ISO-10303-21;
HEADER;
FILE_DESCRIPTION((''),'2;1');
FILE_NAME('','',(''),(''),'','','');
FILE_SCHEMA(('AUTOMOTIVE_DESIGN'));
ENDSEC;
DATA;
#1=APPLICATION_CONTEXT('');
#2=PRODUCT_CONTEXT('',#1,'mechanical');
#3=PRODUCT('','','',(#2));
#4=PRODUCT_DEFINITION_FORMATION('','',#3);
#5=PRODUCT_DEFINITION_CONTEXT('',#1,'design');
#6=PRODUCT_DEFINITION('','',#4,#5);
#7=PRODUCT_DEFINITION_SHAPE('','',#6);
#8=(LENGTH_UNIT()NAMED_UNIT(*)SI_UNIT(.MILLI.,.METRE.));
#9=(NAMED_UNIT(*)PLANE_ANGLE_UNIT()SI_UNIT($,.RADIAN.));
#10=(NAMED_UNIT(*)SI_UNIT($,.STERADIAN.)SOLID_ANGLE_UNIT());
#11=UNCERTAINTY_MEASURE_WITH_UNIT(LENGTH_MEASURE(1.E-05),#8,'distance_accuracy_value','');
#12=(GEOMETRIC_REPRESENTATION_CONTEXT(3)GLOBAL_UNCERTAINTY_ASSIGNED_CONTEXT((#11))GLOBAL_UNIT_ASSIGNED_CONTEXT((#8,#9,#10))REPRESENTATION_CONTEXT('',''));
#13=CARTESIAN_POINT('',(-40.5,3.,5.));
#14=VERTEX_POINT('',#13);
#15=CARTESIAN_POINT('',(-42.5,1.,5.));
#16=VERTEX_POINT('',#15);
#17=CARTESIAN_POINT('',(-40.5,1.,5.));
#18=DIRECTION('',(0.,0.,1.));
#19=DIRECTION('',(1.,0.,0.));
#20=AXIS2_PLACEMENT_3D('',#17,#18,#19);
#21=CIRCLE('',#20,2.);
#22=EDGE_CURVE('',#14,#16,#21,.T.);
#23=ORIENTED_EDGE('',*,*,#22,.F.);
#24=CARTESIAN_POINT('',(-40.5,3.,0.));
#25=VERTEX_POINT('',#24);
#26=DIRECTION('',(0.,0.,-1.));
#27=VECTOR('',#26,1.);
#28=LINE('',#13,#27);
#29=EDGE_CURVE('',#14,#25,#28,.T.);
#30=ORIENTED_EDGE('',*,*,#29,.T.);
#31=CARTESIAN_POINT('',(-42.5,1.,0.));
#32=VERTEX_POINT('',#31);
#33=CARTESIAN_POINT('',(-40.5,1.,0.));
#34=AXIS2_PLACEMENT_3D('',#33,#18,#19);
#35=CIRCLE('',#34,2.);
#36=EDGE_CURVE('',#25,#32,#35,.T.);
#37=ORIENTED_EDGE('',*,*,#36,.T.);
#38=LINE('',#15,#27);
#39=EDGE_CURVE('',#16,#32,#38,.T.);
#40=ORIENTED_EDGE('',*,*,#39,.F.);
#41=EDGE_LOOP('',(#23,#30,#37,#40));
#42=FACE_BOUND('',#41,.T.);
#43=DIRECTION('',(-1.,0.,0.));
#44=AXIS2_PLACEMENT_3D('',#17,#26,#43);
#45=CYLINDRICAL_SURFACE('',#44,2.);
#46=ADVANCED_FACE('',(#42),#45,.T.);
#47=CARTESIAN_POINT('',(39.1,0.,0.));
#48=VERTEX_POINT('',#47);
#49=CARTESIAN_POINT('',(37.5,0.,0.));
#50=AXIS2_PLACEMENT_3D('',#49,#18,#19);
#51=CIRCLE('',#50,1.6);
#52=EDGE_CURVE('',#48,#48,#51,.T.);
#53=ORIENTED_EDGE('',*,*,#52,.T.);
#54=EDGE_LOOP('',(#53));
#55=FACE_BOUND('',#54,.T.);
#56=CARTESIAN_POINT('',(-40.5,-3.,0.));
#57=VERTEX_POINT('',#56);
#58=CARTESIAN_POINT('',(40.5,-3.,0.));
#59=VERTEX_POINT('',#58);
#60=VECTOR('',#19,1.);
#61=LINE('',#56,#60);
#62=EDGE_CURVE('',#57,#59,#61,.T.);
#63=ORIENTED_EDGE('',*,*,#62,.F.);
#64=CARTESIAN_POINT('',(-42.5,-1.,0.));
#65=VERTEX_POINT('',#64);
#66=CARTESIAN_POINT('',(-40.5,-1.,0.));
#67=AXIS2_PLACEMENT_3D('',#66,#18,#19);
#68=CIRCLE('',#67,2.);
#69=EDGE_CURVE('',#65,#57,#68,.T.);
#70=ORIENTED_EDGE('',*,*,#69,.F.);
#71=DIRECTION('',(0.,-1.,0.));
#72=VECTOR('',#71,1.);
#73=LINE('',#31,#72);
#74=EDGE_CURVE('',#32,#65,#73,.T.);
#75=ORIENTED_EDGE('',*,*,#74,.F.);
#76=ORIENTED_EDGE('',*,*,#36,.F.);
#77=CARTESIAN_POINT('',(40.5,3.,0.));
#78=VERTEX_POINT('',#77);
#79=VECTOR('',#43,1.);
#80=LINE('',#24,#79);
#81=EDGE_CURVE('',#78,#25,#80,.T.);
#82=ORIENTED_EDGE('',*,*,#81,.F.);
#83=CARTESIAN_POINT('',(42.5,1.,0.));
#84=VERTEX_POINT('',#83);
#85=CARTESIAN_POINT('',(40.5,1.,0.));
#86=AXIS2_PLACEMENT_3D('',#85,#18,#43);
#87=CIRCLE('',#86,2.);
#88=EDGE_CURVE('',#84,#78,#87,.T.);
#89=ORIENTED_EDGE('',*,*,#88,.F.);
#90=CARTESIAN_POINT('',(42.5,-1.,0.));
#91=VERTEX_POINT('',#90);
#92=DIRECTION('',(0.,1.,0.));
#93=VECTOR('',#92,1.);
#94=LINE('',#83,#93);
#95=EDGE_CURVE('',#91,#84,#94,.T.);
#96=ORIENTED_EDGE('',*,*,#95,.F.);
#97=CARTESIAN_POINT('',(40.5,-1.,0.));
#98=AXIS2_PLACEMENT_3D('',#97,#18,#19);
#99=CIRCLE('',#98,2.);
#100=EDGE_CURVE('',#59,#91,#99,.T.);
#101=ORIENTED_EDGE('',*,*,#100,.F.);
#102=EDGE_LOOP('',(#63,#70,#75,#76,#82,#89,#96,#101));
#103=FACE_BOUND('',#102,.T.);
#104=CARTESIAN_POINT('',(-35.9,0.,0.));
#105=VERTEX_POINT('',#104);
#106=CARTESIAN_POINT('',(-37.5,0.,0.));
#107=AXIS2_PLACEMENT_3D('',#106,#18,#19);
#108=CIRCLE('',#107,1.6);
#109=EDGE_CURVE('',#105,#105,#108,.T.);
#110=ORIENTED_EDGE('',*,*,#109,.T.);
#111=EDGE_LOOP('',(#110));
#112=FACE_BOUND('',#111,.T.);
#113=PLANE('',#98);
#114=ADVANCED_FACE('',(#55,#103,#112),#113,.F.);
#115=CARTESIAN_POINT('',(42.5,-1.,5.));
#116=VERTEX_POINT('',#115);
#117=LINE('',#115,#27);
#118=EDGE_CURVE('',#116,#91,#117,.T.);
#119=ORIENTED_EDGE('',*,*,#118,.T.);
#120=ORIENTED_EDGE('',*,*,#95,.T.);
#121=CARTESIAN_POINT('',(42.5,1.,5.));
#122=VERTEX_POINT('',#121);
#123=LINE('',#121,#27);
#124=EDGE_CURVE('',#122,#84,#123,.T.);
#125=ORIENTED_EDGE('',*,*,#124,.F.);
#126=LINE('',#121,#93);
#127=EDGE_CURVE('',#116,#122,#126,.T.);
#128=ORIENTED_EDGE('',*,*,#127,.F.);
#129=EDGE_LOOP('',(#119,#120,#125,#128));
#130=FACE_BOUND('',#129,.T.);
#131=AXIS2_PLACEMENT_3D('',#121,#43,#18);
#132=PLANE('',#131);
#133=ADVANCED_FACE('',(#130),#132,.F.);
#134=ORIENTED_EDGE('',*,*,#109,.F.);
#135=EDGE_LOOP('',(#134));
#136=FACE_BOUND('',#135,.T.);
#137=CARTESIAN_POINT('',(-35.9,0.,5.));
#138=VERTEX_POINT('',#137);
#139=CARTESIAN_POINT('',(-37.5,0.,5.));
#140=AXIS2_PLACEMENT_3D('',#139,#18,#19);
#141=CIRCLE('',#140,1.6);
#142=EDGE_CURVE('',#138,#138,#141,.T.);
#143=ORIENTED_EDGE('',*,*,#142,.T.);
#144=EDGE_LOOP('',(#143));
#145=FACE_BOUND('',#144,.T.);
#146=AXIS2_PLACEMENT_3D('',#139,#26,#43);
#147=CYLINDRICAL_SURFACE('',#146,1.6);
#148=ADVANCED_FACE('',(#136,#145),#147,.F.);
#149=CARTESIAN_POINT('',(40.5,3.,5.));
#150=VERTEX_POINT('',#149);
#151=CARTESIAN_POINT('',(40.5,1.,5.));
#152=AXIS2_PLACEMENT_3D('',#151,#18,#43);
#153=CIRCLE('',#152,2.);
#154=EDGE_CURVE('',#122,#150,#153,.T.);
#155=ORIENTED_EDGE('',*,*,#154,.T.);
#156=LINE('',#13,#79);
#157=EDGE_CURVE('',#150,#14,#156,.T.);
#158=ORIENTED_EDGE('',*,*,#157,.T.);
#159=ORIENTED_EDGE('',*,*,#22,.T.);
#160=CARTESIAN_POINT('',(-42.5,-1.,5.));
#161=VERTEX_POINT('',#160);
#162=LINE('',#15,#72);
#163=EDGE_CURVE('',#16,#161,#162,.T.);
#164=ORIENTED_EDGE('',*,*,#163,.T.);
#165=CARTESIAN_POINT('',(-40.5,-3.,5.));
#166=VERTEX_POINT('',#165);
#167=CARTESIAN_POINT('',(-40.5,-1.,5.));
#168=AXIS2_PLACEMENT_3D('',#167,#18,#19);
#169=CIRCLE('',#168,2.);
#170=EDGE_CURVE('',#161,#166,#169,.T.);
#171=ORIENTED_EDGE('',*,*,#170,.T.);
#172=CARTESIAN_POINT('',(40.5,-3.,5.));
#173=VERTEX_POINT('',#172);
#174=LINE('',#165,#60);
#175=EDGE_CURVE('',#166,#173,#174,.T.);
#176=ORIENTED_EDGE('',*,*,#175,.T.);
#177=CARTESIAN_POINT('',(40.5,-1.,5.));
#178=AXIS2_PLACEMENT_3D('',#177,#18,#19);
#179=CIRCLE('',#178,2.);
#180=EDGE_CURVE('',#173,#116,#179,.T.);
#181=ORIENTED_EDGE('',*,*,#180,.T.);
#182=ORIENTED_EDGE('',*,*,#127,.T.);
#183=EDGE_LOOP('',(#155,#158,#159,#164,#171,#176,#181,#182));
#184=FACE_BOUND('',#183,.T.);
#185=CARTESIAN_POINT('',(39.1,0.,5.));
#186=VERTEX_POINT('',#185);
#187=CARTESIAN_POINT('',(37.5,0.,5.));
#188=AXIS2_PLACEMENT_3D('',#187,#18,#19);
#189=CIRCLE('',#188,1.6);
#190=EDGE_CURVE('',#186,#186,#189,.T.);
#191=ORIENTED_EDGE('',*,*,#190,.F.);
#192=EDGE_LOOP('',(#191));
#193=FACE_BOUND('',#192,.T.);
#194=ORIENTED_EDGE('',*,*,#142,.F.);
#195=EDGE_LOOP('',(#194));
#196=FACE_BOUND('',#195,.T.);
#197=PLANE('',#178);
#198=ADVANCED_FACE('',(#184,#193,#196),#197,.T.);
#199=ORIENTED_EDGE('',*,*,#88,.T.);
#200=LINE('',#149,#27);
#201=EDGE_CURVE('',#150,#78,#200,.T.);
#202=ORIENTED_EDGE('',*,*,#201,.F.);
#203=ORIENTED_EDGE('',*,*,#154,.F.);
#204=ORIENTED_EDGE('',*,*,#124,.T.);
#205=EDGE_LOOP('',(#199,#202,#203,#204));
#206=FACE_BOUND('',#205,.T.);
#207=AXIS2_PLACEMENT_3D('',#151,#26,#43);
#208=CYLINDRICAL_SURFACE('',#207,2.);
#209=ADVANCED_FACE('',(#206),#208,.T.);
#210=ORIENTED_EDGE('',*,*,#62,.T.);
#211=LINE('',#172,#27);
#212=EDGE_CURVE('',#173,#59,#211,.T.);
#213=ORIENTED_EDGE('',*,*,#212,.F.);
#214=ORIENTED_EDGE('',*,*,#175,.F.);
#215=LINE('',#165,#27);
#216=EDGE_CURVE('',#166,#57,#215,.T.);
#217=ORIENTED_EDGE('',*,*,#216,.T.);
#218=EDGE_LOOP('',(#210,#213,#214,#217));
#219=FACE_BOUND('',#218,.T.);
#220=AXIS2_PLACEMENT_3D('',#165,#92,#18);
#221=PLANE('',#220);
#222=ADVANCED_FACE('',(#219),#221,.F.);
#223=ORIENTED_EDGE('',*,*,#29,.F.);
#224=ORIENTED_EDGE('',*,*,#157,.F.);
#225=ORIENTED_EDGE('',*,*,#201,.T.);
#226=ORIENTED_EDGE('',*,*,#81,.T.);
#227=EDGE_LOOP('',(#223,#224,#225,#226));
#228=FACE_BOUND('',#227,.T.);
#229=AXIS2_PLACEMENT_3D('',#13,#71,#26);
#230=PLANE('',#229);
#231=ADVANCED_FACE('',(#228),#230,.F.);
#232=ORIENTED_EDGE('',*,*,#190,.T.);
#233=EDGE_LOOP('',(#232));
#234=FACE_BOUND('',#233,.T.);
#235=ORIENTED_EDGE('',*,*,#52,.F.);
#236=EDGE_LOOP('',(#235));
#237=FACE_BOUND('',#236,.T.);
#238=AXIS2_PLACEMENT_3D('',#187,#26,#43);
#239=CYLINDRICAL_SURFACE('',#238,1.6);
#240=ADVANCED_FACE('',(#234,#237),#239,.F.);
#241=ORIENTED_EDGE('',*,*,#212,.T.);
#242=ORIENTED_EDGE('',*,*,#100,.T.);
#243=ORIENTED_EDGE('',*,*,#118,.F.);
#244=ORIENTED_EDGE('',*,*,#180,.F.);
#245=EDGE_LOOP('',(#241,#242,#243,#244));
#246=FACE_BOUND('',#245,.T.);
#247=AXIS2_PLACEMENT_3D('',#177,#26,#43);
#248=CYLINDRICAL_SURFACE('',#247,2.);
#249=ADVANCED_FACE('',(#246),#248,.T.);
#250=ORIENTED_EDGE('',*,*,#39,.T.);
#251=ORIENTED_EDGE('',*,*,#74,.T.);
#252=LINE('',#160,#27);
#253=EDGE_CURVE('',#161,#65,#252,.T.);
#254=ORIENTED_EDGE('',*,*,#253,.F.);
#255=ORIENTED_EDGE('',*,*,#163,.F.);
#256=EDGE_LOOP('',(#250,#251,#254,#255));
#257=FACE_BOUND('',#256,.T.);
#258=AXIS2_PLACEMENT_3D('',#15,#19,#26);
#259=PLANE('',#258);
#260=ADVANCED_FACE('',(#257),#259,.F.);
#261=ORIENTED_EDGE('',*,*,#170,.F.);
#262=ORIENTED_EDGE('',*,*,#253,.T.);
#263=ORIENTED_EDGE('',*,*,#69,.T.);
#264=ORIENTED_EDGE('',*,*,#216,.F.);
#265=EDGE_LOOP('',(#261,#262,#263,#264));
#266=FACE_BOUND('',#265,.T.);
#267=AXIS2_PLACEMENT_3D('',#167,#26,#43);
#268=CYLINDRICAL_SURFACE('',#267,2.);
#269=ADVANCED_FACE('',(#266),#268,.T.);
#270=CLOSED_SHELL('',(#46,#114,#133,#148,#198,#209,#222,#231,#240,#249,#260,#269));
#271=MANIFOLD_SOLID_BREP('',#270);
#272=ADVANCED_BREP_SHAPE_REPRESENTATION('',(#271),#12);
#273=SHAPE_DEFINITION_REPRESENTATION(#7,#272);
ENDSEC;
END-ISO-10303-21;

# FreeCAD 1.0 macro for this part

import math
import FreeCAD as App
import Part
import Sketcher

V = App.Vector
Q = App.Units.Quantity

doc = App.newDocument("Part")
body = doc.addObject("PartDesign::Body", "Body")

sketch1 = body.newObject("Sketcher::SketchObject", "Sketch")
sketch1.AttachmentSupport = (doc.getObject("XY_Plane"), [""])
sketch1.MapMode = "FlatFace"
sketch1.addGeometry(Part.LineSegment(V(40.5, 3, 0), V(-40.5, 3, 0)), False)
sketch1.addGeometry(Part.ArcOfCircle(Part.Circle(V(-40.5, 1, 0), V(0, 0, 1), 2), math.radians(90), math.radians(180)), False)
sketch1.addGeometry(Part.LineSegment(V(-42.5, 1, 0), V(-42.5, -1, 0)), False)
sketch1.addGeometry(Part.ArcOfCircle(Part.Circle(V(-40.5, -1, 0), V(0, 0, 1), 2), math.radians(-180), math.radians(-90)), False)
sketch1.addGeometry(Part.LineSegment(V(-40.5, -3, 0), V(40.5, -3, 0)), False)
sketch1.addGeometry(Part.ArcOfCircle(Part.Circle(V(40.5, -1, 0), V(0, 0, 1), 2), math.radians(-90), math.radians(0)), False)
sketch1.addGeometry(Part.LineSegment(V(42.5, -1, 0), V(42.5, 1, 0)), False)
sketch1.addGeometry(Part.ArcOfCircle(Part.Circle(V(40.5, 1, 0), V(0, 0, 1), 2), math.radians(0), math.radians(90)), False)
sketch1.addGeometry(Part.Circle(V(37.5, 0, 0), V(0, 0, 1), 1.6), False)
sketch1.addGeometry(Part.Circle(V(-37.5, 0, 0), V(0, 0, 1), 1.6), False)
sketch1.addConstraint(Sketcher.Constraint("Tangent", 0, 2, 1, 1))
sketch1.addConstraint(Sketcher.Constraint("Tangent", 1, 2, 2, 1))
sketch1.addConstraint(Sketcher.Constraint("Tangent", 2, 2, 3, 1))
sketch1.addConstraint(Sketcher.Constraint("Tangent", 3, 2, 4, 1))
sketch1.addConstraint(Sketcher.Constraint("Tangent", 4, 2, 5, 1))
sketch1.addConstraint(Sketcher.Constraint("Tangent", 5, 2, 6, 1))
sketch1.addConstraint(Sketcher.Constraint("Tangent", 6, 2, 7, 1))
sketch1.addConstraint(Sketcher.Constraint("Tangent", 7, 2, 0, 1))
sketch1.addConstraint(Sketcher.Constraint("Horizontal", 0))
sketch1.addConstraint(Sketcher.Constraint("Vertical", 2))
sketch1.addConstraint(Sketcher.Constraint("Horizontal", 4))
sketch1.addConstraint(Sketcher.Constraint("Vertical", 6))
sketch1.addConstraint(Sketcher.Constraint("Equal", 1, 3))
sketch1.addConstraint(Sketcher.Constraint("Equal", 3, 5))
sketch1.addConstraint(Sketcher.Constraint("Equal", 5, 7))
sketch1.addConstraint(Sketcher.Constraint("Equal", 8, 9))
sketch1.addConstraint(Sketcher.Constraint("Symmetric", 1, 3, 5, 3, -1, 1))
sketch1.addConstraint(Sketcher.Constraint("Symmetric", 8, 3, 9, 3, -1, 1))
sketch1.addConstraint(Sketcher.Constraint("PointOnObject", 8, 3, -1))
sketch1.addConstraint(Sketcher.Constraint("Radius", 1, Q("2 mm")))
sketch1.addConstraint(Sketcher.Constraint("Diameter", 8, Q("3.2 mm")))
sketch1.addConstraint(Sketcher.Constraint("DistanceX", 0, 2, 0, 1, Q("81 mm")))
sketch1.addConstraint(Sketcher.Constraint("DistanceY", 2, 2, 2, 1, Q("2 mm")))
sketch1.addConstraint(Sketcher.Constraint("DistanceX", 8, 3, 5, 3, Q("3 mm")))
pad1 = body.newObject("PartDesign::Pad", "Pad")
pad1.Profile = sketch1
pad1.Length = 5

doc.recompute()
